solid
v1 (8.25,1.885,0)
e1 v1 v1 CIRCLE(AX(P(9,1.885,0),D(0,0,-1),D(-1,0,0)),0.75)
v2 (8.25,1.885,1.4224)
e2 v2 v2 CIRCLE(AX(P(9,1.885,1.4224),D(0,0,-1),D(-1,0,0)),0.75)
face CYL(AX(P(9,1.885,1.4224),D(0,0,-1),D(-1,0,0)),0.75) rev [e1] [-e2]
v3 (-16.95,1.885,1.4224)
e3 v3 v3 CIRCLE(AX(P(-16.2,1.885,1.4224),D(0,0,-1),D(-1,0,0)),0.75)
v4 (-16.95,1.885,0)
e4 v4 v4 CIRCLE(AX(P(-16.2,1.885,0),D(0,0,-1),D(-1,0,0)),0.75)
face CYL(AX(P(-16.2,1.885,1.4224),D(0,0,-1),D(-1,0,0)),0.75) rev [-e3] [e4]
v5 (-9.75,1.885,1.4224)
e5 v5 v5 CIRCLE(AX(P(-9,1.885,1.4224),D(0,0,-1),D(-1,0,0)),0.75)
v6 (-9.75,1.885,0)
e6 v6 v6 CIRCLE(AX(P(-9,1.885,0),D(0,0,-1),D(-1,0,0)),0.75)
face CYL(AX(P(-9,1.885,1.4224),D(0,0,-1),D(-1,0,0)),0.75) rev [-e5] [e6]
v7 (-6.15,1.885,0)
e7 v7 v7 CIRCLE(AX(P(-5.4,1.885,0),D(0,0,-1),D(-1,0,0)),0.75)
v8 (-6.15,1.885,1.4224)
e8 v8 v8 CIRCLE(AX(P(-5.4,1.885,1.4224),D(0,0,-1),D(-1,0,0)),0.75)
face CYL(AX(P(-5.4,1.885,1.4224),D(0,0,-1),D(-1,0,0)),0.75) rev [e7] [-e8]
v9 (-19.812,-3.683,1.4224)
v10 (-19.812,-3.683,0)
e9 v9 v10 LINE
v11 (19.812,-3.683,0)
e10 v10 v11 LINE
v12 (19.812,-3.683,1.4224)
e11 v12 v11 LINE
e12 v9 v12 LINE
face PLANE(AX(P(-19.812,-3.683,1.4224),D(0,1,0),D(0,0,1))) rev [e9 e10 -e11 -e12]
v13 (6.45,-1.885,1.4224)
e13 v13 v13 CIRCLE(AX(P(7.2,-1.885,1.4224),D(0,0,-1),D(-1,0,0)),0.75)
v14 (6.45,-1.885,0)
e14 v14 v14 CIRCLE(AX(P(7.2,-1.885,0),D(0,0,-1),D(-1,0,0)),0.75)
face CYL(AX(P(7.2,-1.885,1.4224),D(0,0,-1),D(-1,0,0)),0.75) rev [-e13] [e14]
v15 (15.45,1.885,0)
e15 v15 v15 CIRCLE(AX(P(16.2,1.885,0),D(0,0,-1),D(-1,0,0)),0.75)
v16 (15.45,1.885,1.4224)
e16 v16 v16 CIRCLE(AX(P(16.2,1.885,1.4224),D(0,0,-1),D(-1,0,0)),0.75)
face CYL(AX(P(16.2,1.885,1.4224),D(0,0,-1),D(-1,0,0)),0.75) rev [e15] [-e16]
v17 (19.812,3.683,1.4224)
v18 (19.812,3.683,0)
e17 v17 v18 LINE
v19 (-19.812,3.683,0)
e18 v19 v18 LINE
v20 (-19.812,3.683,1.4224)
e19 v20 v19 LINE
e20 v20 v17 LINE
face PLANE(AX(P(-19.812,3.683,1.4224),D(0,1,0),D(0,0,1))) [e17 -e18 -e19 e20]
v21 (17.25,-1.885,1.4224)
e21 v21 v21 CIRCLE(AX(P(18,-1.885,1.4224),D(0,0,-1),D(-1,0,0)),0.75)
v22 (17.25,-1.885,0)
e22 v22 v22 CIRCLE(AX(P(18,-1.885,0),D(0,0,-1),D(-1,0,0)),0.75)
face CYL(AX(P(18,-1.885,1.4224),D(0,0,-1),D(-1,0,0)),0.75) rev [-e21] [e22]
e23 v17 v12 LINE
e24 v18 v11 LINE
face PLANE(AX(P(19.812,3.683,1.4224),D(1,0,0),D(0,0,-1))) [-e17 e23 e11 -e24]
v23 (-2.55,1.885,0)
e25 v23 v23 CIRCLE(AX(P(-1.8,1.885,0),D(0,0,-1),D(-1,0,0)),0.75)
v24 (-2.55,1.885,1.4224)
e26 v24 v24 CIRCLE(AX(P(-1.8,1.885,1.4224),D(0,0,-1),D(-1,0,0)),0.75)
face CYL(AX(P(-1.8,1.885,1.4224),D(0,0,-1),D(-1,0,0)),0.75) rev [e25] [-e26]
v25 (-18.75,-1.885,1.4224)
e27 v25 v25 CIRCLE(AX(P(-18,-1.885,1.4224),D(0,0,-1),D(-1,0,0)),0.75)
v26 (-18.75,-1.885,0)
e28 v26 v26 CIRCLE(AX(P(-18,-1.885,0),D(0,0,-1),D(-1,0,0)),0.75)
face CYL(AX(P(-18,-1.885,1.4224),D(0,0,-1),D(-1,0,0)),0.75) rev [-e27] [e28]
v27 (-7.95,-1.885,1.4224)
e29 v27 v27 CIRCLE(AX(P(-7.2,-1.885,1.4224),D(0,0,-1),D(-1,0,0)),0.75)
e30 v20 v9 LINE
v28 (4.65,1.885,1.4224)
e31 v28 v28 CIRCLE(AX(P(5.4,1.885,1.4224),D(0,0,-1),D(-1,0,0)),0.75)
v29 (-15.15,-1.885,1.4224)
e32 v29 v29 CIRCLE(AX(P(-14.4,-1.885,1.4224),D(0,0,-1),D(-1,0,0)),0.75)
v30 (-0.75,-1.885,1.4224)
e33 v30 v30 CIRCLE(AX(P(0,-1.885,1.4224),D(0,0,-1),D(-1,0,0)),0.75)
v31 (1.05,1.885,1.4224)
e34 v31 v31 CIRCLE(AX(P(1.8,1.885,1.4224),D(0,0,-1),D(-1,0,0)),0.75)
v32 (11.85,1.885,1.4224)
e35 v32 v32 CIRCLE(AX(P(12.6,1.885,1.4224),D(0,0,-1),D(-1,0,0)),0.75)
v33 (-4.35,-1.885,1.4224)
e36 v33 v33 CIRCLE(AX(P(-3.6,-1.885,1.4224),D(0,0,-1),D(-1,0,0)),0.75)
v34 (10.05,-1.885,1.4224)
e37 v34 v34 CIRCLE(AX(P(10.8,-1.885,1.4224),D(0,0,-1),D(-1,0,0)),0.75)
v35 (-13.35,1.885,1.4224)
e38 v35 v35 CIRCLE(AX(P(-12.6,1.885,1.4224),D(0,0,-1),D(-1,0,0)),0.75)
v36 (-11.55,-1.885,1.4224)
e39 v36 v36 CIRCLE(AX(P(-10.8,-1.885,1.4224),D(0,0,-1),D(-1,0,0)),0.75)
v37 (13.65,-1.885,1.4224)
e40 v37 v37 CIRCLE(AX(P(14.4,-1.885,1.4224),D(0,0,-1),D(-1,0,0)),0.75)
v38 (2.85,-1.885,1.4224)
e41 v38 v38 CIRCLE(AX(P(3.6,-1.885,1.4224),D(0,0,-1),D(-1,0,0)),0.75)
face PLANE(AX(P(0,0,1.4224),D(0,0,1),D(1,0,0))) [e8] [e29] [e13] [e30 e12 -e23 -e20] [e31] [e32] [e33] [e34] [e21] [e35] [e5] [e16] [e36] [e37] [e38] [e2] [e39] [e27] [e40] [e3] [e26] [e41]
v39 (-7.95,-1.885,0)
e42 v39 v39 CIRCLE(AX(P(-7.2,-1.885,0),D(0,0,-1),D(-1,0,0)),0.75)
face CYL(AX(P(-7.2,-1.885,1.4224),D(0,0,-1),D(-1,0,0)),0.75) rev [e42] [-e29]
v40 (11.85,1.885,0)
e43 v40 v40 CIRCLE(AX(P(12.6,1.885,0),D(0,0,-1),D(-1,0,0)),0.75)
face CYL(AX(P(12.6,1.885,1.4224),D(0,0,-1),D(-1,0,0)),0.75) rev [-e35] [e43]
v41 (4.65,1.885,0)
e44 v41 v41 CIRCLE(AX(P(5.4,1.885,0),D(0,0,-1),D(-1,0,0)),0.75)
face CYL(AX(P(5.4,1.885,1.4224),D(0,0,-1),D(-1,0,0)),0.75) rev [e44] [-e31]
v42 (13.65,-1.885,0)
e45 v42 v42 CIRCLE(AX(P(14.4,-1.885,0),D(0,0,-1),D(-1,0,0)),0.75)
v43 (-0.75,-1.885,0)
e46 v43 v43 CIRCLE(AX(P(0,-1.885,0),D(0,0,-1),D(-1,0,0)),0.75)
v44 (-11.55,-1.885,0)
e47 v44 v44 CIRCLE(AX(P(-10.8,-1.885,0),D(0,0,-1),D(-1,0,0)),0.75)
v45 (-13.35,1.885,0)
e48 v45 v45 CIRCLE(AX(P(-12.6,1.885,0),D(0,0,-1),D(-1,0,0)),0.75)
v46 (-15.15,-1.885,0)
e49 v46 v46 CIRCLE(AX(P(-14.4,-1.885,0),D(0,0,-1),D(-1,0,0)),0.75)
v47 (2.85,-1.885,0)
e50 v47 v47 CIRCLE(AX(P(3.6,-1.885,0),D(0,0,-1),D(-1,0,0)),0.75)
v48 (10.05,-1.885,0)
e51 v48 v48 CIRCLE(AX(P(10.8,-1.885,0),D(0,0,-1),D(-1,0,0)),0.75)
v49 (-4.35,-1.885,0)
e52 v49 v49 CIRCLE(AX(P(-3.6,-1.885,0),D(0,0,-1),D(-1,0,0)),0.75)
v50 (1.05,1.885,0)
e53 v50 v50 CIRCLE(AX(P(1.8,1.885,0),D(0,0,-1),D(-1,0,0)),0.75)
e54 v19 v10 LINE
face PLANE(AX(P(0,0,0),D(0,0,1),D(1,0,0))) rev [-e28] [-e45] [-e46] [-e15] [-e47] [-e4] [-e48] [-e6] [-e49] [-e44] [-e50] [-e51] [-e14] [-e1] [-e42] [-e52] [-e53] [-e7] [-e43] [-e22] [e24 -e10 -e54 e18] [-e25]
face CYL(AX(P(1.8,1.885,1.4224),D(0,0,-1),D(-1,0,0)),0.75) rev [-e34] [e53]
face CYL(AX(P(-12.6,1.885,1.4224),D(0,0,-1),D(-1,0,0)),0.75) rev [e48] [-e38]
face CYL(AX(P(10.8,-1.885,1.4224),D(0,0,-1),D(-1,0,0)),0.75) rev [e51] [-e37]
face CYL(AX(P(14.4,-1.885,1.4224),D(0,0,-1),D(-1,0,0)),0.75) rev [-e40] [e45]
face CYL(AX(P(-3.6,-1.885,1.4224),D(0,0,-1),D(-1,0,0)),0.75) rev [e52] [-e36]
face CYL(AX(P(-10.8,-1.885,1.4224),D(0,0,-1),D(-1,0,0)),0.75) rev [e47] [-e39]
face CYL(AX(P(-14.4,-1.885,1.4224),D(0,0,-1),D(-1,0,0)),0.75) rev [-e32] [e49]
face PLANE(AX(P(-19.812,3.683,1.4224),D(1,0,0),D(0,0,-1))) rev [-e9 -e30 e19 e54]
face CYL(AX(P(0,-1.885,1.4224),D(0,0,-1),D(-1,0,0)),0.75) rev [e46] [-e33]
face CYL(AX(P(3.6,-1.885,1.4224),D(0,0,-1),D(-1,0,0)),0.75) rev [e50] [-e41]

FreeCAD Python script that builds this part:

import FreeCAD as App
import Part
import Sketcher

V = App.Vector
Q = App.Units.Quantity

doc = App.newDocument("Part")
body = doc.addObject("PartDesign::Body", "Body")

# Sketch on XY plane
sketch1 = body.newObject("Sketcher::SketchObject", "Sketch")
sketch1.AttachmentSupport = (doc.getObject("XY_Plane"), [""])
sketch1.MapMode = "FlatFace"
sketch1.addGeometry(Part.LineSegment(V(-19.812, 3.683, 0), V(-19.812, -3.683, 0)), False)
sketch1.addGeometry(Part.LineSegment(V(-19.812, -3.683, 0), V(19.812, -3.683, 0)), False)
sketch1.addGeometry(Part.LineSegment(V(19.812, -3.683, 0), V(19.812, 3.683, 0)), False)
sketch1.addGeometry(Part.LineSegment(V(19.812, 3.683, 0), V(-19.812, 3.683, 0)), False)
sketch1.addConstraint(Sketcher.Constraint("Coincident", 0, 2, 1, 1))
sketch1.addConstraint(Sketcher.Constraint("Coincident", 1, 2, 2, 1))
sketch1.addConstraint(Sketcher.Constraint("Coincident", 2, 2, 3, 1))
sketch1.addConstraint(Sketcher.Constraint("Coincident", 3, 2, 0, 1))
sketch1.addConstraint(Sketcher.Constraint("Vertical", 0))
sketch1.addConstraint(Sketcher.Constraint("Horizontal", 1))
sketch1.addConstraint(Sketcher.Constraint("Vertical", 2))
sketch1.addConstraint(Sketcher.Constraint("Horizontal", 3))
sketch1.addConstraint(Sketcher.Constraint("Symmetric", 0, 2, 2, 2, -1, 1))
sketch1.addConstraint(Sketcher.Constraint("DistanceX", 1, 1, 1, 2, Q("1.56 in")))
sketch1.addConstraint(Sketcher.Constraint("DistanceY", 0, 2, 0, 1, Q("0.29 in")))
pad1 = body.newObject("PartDesign::Pad", "Pad")
pad1.Profile = sketch1
pad1.Length = Q("0.056 in")

# Sketch on XY plane
sketch2 = body.newObject("Sketcher::SketchObject", "Sketch001")
sketch2.AttachmentSupport = (doc.getObject("XY_Plane"), [""])
sketch2.MapMode = "FlatFace"
sketch2.addGeometry(Part.Circle(V(18, -1.885, 0), V(0, 0, 1), 0.75), False)
sketch2.addGeometry(Part.Circle(V(14.4, -1.885, 0), V(0, 0, 1), 0.75), False)
sketch2.addGeometry(Part.Circle(V(10.8, -1.885, 0), V(0, 0, 1), 0.75), False)
sketch2.addGeometry(Part.Circle(V(7.2, -1.885, 0), V(0, 0, 1), 0.75), False)
sketch2.addGeometry(Part.Circle(V(3.6, -1.885, 0), V(0, 0, 1), 0.75), False)
sketch2.addGeometry(Part.Circle(V(0, -1.885, 0), V(0, 0, 1), 0.75), False)
sketch2.addGeometry(Part.Circle(V(-3.6, -1.885, 0), V(0, 0, 1), 0.75), False)
sketch2.addGeometry(Part.Circle(V(-7.2, -1.885, 0), V(0, 0, 1), 0.75), False)
sketch2.addGeometry(Part.Circle(V(-10.8, -1.885, 0), V(0, 0, 1), 0.75), False)
sketch2.addGeometry(Part.Circle(V(-14.4, -1.885, 0), V(0, 0, 1), 0.75), False)
sketch2.addGeometry(Part.Circle(V(-18, -1.885, 0), V(0, 0, 1), 0.75), False)
sketch2.addGeometry(Part.Circle(V(-16.2, 1.885, 0), V(0, 0, 1), 0.75), False)
sketch2.addGeometry(Part.Circle(V(-12.6, 1.885, 0), V(0, 0, 1), 0.75), False)
sketch2.addGeometry(Part.Circle(V(-9, 1.885, 0), V(0, 0, 1), 0.75), False)
sketch2.addGeometry(Part.Circle(V(-5.4, 1.885, 0), V(0, 0, 1), 0.75), False)
sketch2.addGeometry(Part.Circle(V(-1.8, 1.885, 0), V(0, 0, 1), 0.75), False)
sketch2.addGeometry(Part.Circle(V(1.8, 1.885, 0), V(0, 0, 1), 0.75), False)
sketch2.addGeometry(Part.Circle(V(5.4, 1.885, 0), V(0, 0, 1), 0.75), False)
sketch2.addGeometry(Part.Circle(V(9, 1.885, 0), V(0, 0, 1), 0.75), False)
sketch2.addGeometry(Part.Circle(V(12.6, 1.885, 0), V(0, 0, 1), 0.75), False)
sketch2.addGeometry(Part.Circle(V(16.2, 1.885, 0), V(0, 0, 1), 0.75), False)
sketch2.addConstraint(Sketcher.Constraint("Equal", 0, 1))
sketch2.addConstraint(Sketcher.Constraint("Equal", 1, 2))
sketch2.addConstraint(Sketcher.Constraint("Equal", 2, 3))
sketch2.addConstraint(Sketcher.Constraint("Equal", 3, 4))
sketch2.addConstraint(Sketcher.Constraint("Equal", 4, 5))
sketch2.addConstraint(Sketcher.Constraint("Equal", 5, 6))
sketch2.addConstraint(Sketcher.Constraint("Equal", 6, 7))
sketch2.addConstraint(Sketcher.Constraint("Equal", 7, 8))
sketch2.addConstraint(Sketcher.Constraint("Equal", 8, 9))
sketch2.addConstraint(Sketcher.Constraint("Equal", 9, 10))
sketch2.addConstraint(Sketcher.Constraint("Equal", 10, 11))
sketch2.addConstraint(Sketcher.Constraint("Equal", 11, 12))
sketch2.addConstraint(Sketcher.Constraint("Equal", 12, 13))
sketch2.addConstraint(Sketcher.Constraint("Equal", 13, 14))
sketch2.addConstraint(Sketcher.Constraint("Equal", 14, 15))
sketch2.addConstraint(Sketcher.Constraint("Equal", 15, 16))
sketch2.addConstraint(Sketcher.Constraint("Equal", 16, 17))
sketch2.addConstraint(Sketcher.Constraint("Equal", 17, 18))
sketch2.addConstraint(Sketcher.Constraint("Equal", 18, 19))
sketch2.addConstraint(Sketcher.Constraint("Equal", 19, 20))
sketch2.addConstraint(Sketcher.Constraint("Symmetric", 4, 3, 6, 3, -2))
sketch2.addConstraint(Sketcher.Constraint("Symmetric", 3, 3, 7, 3, -2))
sketch2.addConstraint(Sketcher.Constraint("Symmetric", 2, 3, 8, 3, -2))
sketch2.addConstraint(Sketcher.Constraint("Symmetric", 1, 3, 9, 3, -2))
sketch2.addConstraint(Sketcher.Constraint("Symmetric", 0, 3, 10, 3, -2))
sketch2.addConstraint(Sketcher.Constraint("Symmetric", 15, 3, 16, 3, -2))
sketch2.addConstraint(Sketcher.Constraint("Symmetric", 14, 3, 17, 3, -2))
sketch2.addConstraint(Sketcher.Constraint("Symmetric", 13, 3, 18, 3, -2))
sketch2.addConstraint(Sketcher.Constraint("Symmetric", 12, 3, 19, 3, -2))
sketch2.addConstraint(Sketcher.Constraint("Symmetric", 11, 3, 20, 3, -2))
sketch2.addConstraint(Sketcher.Constraint("PointOnObject", 5, 3, -2))
sketch2.addConstraint(Sketcher.Constraint("Horizontal", 0, 3, 1, 3))
sketch2.addConstraint(Sketcher.Constraint("Horizontal", 1, 3, 2, 3))
sketch2.addConstraint(Sketcher.Constraint("Horizontal", 2, 3, 3, 3))
sketch2.addConstraint(Sketcher.Constraint("Horizontal", 3, 3, 4, 3))
sketch2.addConstraint(Sketcher.Constraint("Horizontal", 4, 3, 5, 3))
sketch2.addConstraint(Sketcher.Constraint("Horizontal", 11, 3, 12, 3))
sketch2.addConstraint(Sketcher.Constraint("Horizontal", 12, 3, 13, 3))
sketch2.addConstraint(Sketcher.Constraint("Horizontal", 13, 3, 14, 3))
sketch2.addConstraint(Sketcher.Constraint("Horizontal", 14, 3, 15, 3))
sketch2.addConstraint(Sketcher.Constraint("Diameter", 0, 1.5))
sketch2.addConstraint(Sketcher.Constraint("DistanceX", -1, 1, 0, 3, 18.0))
sketch2.addConstraint(Sketcher.Constraint("DistanceY", 0, 3, -1, 1, 1.885))
sketch2.addConstraint(Sketcher.Constraint("DistanceX", -1, 1, 1, 3, 14.4))
sketch2.addConstraint(Sketcher.Constraint("DistanceX", -1, 1, 2, 3, 10.8))
sketch2.addConstraint(Sketcher.Constraint("DistanceX", -1, 1, 3, 3, 7.2))
sketch2.addConstraint(Sketcher.Constraint("DistanceX", -1, 1, 4, 3, 3.6))
sketch2.addConstraint(Sketcher.Constraint("DistanceX", 11, 3, -1, 1, 16.2))
sketch2.addConstraint(Sketcher.Constraint("DistanceY", -1, 1, 11, 3, 1.885))
sketch2.addConstraint(Sketcher.Constraint("DistanceX", 12, 3, -1, 1, 12.6))
sketch2.addConstraint(Sketcher.Constraint("DistanceX", 13, 3, -1, 1, 9.0))
sketch2.addConstraint(Sketcher.Constraint("DistanceX", 14, 3, -1, 1, 5.4))
sketch2.addConstraint(Sketcher.Constraint("DistanceX", 15, 3, -1, 1, 1.8))
pocket1 = body.newObject("PartDesign::Pocket", "Pocket")
pocket1.Profile = sketch2
pocket1.Type = "ThroughAll"
pocket1.Reversed = True

doc.recompute()
